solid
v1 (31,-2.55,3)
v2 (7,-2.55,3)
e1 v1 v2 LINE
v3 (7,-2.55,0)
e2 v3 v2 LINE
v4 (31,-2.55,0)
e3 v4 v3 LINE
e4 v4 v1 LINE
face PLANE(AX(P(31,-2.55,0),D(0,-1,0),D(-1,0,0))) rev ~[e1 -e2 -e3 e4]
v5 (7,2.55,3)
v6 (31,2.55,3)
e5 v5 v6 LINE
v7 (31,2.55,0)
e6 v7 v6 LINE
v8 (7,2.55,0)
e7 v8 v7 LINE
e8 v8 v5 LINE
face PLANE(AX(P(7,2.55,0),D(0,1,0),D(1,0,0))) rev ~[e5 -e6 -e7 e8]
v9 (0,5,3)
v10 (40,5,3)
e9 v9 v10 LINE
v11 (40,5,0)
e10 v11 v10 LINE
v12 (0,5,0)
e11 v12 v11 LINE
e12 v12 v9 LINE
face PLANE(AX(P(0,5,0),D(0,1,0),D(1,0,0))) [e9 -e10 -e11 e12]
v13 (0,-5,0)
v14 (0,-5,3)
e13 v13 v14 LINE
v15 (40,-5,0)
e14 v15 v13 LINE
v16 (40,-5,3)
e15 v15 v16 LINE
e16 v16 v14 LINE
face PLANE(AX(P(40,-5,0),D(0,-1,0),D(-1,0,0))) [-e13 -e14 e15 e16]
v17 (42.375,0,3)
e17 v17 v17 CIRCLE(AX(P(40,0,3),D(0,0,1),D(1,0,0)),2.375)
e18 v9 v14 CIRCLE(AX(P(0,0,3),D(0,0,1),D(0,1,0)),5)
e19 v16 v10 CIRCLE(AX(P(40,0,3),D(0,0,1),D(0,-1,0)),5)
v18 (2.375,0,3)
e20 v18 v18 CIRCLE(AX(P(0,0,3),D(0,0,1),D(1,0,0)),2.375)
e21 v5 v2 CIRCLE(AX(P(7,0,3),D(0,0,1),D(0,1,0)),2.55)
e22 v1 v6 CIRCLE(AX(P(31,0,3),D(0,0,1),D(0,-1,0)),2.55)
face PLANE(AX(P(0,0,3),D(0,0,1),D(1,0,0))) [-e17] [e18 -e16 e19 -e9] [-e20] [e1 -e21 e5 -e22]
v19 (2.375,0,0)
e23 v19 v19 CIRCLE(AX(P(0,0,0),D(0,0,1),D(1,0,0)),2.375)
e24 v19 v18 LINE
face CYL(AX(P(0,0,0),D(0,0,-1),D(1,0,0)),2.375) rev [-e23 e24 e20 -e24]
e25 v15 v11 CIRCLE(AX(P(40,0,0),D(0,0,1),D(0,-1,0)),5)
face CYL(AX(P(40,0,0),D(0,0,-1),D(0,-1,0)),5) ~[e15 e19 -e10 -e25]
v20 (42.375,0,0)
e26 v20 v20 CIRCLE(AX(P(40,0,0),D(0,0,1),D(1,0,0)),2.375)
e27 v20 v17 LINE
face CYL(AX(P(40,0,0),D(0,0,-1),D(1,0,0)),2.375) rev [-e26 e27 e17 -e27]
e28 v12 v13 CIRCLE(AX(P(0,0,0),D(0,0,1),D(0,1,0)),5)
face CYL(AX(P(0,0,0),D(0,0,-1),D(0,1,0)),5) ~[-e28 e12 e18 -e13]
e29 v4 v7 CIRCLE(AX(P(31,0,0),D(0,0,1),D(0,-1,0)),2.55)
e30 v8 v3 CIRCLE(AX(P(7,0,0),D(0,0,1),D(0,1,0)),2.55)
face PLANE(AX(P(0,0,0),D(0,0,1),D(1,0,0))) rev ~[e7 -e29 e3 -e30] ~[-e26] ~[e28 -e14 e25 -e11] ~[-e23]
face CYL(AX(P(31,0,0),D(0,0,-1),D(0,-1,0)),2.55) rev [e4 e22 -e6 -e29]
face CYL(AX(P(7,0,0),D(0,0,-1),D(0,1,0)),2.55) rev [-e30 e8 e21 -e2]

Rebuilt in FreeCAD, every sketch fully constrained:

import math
import FreeCAD as App
import Part
import Sketcher

V = App.Vector

doc = App.newDocument("Part")
body = doc.addObject("PartDesign::Body", "Body")

# Sketch on XY plane
sketch1 = body.newObject("Sketcher::SketchObject", "Sketch")
sketch1.AttachmentSupport = (doc.getObject("XY_Plane"), [""])
sketch1.MapMode = "FlatFace"
sketch1.addGeometry(Part.LineSegment(V(40, 5, 0), V(0, 5, 0)), False)
sketch1.addGeometry(Part.ArcOfCircle(Part.Circle(V(0, 0, 0), V(0, 0, 1), 5), math.radians(90), math.radians(270)), False)
sketch1.addGeometry(Part.LineSegment(V(0, -5, 0), V(40, -5, 0)), False)
sketch1.addGeometry(Part.ArcOfCircle(Part.Circle(V(40, 0, 0), V(0, 0, 1), 5), math.radians(-90), math.radians(90)), False)
sketch1.addGeometry(Part.Circle(V(0, 0, 0), V(0, 0, 1), 2.4), False)
sketch1.addGeometry(Part.ArcOfCircle(Part.Circle(V(7, 0, 0), V(0, 0, 1), 2.5), math.radians(90), math.radians(270)), False)
sketch1.addGeometry(Part.LineSegment(V(7, 2.5, 0), V(31, 2.5, 0)), False)
sketch1.addGeometry(Part.ArcOfCircle(Part.Circle(V(31, 0, 0), V(0, 0, 1), 2.5), math.radians(-90), math.radians(90)), False)
sketch1.addGeometry(Part.LineSegment(V(31, -2.5, 0), V(7, -2.5, 0)), False)
sketch1.addGeometry(Part.Circle(V(40, 0, 0), V(0, 0, 1), 2.4), False)
sketch1.addConstraint(Sketcher.Constraint("Tangent", 0, 2, 1, 1))
sketch1.addConstraint(Sketcher.Constraint("Tangent", 1, 2, 2, 1))
sketch1.addConstraint(Sketcher.Constraint("Tangent", 2, 2, 3, 1))
sketch1.addConstraint(Sketcher.Constraint("Tangent", 3, 2, 0, 1))
sketch1.addConstraint(Sketcher.Constraint("Tangent", 5, 1, 6, 1))
sketch1.addConstraint(Sketcher.Constraint("Tangent", 6, 2, 7, 2))
sketch1.addConstraint(Sketcher.Constraint("Tangent", 7, 1, 8, 1))
sketch1.addConstraint(Sketcher.Constraint("Tangent", 8, 2, 5, 2))
sketch1.addConstraint(Sketcher.Constraint("Horizontal", 0))
sketch1.addConstraint(Sketcher.Constraint("Horizontal", 2))
sketch1.addConstraint(Sketcher.Constraint("Horizontal", 6))
sketch1.addConstraint(Sketcher.Constraint("Horizontal", 8))
sketch1.addConstraint(Sketcher.Constraint("Coincident", 1, 3, -1, 1))
sketch1.addConstraint(Sketcher.Constraint("Coincident", 4, 3, -1, 1))
sketch1.addConstraint(Sketcher.Constraint("Coincident", 9, 3, 3, 3))
sketch1.addConstraint(Sketcher.Constraint("Equal", 4, 9))
sketch1.addConstraint(Sketcher.Constraint("PointOnObject", 5, 3, -1))
sketch1.addConstraint(Sketcher.Constraint("Radius", 1, 5.0))
sketch1.addConstraint(Sketcher.Constraint("Diameter", 4, 4.75))
sketch1.addConstraint(Sketcher.Constraint("DistanceX", 0, 2, 0, 1, 40.0))
sketch1.addConstraint(Sketcher.Constraint("Radius", 5, 2.55))
sketch1.addConstraint(Sketcher.Constraint("DistanceX", -1, 1, 5, 3, 7.0))
sketch1.addConstraint(Sketcher.Constraint("DistanceX", 7, 3, 3, 3, 9.0))
pad1 = body.newObject("PartDesign::Pad", "Pad")
pad1.Profile = sketch1
pad1.Length = 3

doc.recompute()
